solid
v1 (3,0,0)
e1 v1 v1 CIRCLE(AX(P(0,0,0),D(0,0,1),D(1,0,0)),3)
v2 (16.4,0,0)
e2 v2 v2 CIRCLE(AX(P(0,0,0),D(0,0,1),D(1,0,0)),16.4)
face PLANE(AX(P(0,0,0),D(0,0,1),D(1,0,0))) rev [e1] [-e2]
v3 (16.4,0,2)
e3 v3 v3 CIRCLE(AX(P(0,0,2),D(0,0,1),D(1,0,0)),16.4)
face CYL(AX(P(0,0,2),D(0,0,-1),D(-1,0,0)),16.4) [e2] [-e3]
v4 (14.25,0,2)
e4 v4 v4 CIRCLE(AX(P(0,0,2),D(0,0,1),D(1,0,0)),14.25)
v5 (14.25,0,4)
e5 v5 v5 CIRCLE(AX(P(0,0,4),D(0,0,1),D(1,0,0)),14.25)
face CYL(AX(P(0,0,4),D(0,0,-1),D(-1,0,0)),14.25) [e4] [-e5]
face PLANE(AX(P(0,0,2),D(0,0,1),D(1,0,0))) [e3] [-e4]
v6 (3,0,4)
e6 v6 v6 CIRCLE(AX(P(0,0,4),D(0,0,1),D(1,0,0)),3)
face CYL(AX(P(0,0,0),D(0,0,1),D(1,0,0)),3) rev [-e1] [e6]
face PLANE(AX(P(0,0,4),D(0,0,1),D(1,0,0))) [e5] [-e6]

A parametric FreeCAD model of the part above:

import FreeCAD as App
import Part
import Sketcher
Q = App.Units.Quantity

doc = App.newDocument("Part")
body = doc.addObject("PartDesign::Body", "Body")

# Sketch on XY plane
sketch1 = doc.addObject("Sketcher::SketchObject", "Sketch")
body.addObject(sketch1)
sketch1.AttachmentSupport = (doc.XY_Plane, [""])
sketch1.MapMode = "FlatFace"
sketch1.addGeometry(Part.Circle(App.Vector(0, 0, 0), App.Vector(0, 0, 1), 16.4), False)
sketch1.addConstraint([
    Sketcher.Constraint("Coincident", 0, 3, -1, 1),
    Sketcher.Constraint("Diameter", 0, Q("32.8 mm")),
])
pad1 = doc.addObject("PartDesign::Pad", "Pad")
body.addObject(pad1)
pad1.Profile = sketch1
pad1.Length = 2

# Sketch on XY plane
sketch2 = doc.addObject("Sketcher::SketchObject", "Sketch001")
body.addObject(sketch2)
sketch2.AttachmentSupport = (doc.XY_Plane, [""])
sketch2.MapMode = "FlatFace"
sketch2.AttachmentOffset = App.Placement(App.Vector(0, 0, 2), App.Rotation())
sketch2.addGeometry(Part.Circle(App.Vector(0, 0, 0), App.Vector(0, 0, 1), 14.25), False)
sketch2.addConstraint([
    Sketcher.Constraint("Coincident", 0, 3, -1, 1),
    Sketcher.Constraint("Diameter", 0, Q("28.5 mm")),
])
pad2 = doc.addObject("PartDesign::Pad", "Pad001")
body.addObject(pad2)
pad2.Profile = sketch2
pad2.Length = 2

# Sketch on XY plane
sketch3 = doc.addObject("Sketcher::SketchObject", "Sketch002")
body.addObject(sketch3)
sketch3.AttachmentSupport = (doc.XY_Plane, [""])
sketch3.MapMode = "FlatFace"
sketch3.AttachmentOffset = App.Placement(App.Vector(0, 0, 4), App.Rotation())
sketch3.addGeometry(Part.Circle(App.Vector(0, 0, 0), App.Vector(0, 0, 1), 3), False)
sketch3.addConstraint([
    Sketcher.Constraint("Coincident", 0, 3, -1, 1),
    Sketcher.Constraint("Diameter", 0, Q("6 mm")),
])
pocket1 = doc.addObject("PartDesign::Pocket", "Pocket")
body.addObject(pocket1)
pocket1.Profile = sketch3
pocket1.Type = "ThroughAll"

doc.recompute()
